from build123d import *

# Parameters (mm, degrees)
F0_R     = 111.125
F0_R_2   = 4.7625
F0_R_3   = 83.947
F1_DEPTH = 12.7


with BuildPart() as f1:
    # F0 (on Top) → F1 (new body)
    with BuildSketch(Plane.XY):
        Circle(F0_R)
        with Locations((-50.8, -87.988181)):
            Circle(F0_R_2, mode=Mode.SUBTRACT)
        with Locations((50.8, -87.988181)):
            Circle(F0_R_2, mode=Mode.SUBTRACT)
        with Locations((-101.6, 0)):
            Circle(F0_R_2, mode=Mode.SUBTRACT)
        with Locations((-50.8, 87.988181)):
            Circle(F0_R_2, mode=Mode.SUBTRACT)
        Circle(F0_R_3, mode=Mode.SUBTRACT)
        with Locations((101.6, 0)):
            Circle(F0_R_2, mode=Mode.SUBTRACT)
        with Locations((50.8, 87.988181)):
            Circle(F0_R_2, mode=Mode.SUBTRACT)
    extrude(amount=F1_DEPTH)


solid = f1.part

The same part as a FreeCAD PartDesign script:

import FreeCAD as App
import Part
import Sketcher
from FreeCAD import Vector
Q = App.Units.Quantity

doc = App.newDocument("Part")
body = doc.addObject("PartDesign::Body", "Body")

sketch1 = body.newObject("Sketcher::SketchObject", "Sketch")
sketch1.AttachmentSupport = (doc.getObject("XY_Plane"), [""])
sketch1.MapMode = "FlatFace"
sketch1.addGeometry([
    Part.Circle(Vector(0, 0, 0), Vector(0, 0, 1), 111.1),
    Part.Circle(Vector(-50.8, -88, 0), Vector(0, 0, 1), 4.8),
    Part.Circle(Vector(50.8, -88, 0), Vector(0, 0, 1), 4.8),
    Part.Circle(Vector(-101.6, 0, 0), Vector(0, 0, 1), 4.8),
    Part.Circle(Vector(-50.8, 88, 0), Vector(0, 0, 1), 4.8),
    Part.Circle(Vector(0, 0, 0), Vector(0, 0, 1), 83.9),
    Part.Circle(Vector(101.6, 0, 0), Vector(0, 0, 1), 4.8),
    Part.Circle(Vector(50.8, 88, 0), Vector(0, 0, 1), 4.8),
], False)
sketch1.addConstraint([
    Sketcher.Constraint("Coincident", 0, 3, -1, 1),
    Sketcher.Constraint("Coincident", 5, 3, -1, 1),
    Sketcher.Constraint("Equal", 1, 2),
    Sketcher.Constraint("Equal", 2, 3),
    Sketcher.Constraint("Equal", 3, 4),
    Sketcher.Constraint("Equal", 4, 6),
    Sketcher.Constraint("Equal", 6, 7),
    Sketcher.Constraint("Symmetric", 2, 3, 4, 3, -1, 1),
    Sketcher.Constraint("Symmetric", 3, 3, 6, 3, -1, 1),
    Sketcher.Constraint("Symmetric", 1, 3, 7, 3, -1, 1),
    Sketcher.Constraint("Symmetric", 1, 3, 2, 3, -2),
    Sketcher.Constraint("PointOnObject", 3, 3, -1),
    Sketcher.Constraint("Diameter", 0, Q("8.75 in")),
    Sketcher.Constraint("Diameter", 5, Q("6.61 in")),
    Sketcher.Constraint("Diameter", 1, Q("0.375 in")),
    Sketcher.Constraint("DistanceX", 1, 3, -1, 1, Q("2 in")),
    Sketcher.Constraint("DistanceX", 3, 3, -1, 1, Q("4 in")),
    Sketcher.Constraint("DistanceY", 1, 3, -1, 1, Q("87.988181 mm")),
])
pad1 = body.newObject("PartDesign::Pad", "Pad")
pad1.Profile = sketch1
pad1.Length = Q("0.5 in")

doc.recompute()
